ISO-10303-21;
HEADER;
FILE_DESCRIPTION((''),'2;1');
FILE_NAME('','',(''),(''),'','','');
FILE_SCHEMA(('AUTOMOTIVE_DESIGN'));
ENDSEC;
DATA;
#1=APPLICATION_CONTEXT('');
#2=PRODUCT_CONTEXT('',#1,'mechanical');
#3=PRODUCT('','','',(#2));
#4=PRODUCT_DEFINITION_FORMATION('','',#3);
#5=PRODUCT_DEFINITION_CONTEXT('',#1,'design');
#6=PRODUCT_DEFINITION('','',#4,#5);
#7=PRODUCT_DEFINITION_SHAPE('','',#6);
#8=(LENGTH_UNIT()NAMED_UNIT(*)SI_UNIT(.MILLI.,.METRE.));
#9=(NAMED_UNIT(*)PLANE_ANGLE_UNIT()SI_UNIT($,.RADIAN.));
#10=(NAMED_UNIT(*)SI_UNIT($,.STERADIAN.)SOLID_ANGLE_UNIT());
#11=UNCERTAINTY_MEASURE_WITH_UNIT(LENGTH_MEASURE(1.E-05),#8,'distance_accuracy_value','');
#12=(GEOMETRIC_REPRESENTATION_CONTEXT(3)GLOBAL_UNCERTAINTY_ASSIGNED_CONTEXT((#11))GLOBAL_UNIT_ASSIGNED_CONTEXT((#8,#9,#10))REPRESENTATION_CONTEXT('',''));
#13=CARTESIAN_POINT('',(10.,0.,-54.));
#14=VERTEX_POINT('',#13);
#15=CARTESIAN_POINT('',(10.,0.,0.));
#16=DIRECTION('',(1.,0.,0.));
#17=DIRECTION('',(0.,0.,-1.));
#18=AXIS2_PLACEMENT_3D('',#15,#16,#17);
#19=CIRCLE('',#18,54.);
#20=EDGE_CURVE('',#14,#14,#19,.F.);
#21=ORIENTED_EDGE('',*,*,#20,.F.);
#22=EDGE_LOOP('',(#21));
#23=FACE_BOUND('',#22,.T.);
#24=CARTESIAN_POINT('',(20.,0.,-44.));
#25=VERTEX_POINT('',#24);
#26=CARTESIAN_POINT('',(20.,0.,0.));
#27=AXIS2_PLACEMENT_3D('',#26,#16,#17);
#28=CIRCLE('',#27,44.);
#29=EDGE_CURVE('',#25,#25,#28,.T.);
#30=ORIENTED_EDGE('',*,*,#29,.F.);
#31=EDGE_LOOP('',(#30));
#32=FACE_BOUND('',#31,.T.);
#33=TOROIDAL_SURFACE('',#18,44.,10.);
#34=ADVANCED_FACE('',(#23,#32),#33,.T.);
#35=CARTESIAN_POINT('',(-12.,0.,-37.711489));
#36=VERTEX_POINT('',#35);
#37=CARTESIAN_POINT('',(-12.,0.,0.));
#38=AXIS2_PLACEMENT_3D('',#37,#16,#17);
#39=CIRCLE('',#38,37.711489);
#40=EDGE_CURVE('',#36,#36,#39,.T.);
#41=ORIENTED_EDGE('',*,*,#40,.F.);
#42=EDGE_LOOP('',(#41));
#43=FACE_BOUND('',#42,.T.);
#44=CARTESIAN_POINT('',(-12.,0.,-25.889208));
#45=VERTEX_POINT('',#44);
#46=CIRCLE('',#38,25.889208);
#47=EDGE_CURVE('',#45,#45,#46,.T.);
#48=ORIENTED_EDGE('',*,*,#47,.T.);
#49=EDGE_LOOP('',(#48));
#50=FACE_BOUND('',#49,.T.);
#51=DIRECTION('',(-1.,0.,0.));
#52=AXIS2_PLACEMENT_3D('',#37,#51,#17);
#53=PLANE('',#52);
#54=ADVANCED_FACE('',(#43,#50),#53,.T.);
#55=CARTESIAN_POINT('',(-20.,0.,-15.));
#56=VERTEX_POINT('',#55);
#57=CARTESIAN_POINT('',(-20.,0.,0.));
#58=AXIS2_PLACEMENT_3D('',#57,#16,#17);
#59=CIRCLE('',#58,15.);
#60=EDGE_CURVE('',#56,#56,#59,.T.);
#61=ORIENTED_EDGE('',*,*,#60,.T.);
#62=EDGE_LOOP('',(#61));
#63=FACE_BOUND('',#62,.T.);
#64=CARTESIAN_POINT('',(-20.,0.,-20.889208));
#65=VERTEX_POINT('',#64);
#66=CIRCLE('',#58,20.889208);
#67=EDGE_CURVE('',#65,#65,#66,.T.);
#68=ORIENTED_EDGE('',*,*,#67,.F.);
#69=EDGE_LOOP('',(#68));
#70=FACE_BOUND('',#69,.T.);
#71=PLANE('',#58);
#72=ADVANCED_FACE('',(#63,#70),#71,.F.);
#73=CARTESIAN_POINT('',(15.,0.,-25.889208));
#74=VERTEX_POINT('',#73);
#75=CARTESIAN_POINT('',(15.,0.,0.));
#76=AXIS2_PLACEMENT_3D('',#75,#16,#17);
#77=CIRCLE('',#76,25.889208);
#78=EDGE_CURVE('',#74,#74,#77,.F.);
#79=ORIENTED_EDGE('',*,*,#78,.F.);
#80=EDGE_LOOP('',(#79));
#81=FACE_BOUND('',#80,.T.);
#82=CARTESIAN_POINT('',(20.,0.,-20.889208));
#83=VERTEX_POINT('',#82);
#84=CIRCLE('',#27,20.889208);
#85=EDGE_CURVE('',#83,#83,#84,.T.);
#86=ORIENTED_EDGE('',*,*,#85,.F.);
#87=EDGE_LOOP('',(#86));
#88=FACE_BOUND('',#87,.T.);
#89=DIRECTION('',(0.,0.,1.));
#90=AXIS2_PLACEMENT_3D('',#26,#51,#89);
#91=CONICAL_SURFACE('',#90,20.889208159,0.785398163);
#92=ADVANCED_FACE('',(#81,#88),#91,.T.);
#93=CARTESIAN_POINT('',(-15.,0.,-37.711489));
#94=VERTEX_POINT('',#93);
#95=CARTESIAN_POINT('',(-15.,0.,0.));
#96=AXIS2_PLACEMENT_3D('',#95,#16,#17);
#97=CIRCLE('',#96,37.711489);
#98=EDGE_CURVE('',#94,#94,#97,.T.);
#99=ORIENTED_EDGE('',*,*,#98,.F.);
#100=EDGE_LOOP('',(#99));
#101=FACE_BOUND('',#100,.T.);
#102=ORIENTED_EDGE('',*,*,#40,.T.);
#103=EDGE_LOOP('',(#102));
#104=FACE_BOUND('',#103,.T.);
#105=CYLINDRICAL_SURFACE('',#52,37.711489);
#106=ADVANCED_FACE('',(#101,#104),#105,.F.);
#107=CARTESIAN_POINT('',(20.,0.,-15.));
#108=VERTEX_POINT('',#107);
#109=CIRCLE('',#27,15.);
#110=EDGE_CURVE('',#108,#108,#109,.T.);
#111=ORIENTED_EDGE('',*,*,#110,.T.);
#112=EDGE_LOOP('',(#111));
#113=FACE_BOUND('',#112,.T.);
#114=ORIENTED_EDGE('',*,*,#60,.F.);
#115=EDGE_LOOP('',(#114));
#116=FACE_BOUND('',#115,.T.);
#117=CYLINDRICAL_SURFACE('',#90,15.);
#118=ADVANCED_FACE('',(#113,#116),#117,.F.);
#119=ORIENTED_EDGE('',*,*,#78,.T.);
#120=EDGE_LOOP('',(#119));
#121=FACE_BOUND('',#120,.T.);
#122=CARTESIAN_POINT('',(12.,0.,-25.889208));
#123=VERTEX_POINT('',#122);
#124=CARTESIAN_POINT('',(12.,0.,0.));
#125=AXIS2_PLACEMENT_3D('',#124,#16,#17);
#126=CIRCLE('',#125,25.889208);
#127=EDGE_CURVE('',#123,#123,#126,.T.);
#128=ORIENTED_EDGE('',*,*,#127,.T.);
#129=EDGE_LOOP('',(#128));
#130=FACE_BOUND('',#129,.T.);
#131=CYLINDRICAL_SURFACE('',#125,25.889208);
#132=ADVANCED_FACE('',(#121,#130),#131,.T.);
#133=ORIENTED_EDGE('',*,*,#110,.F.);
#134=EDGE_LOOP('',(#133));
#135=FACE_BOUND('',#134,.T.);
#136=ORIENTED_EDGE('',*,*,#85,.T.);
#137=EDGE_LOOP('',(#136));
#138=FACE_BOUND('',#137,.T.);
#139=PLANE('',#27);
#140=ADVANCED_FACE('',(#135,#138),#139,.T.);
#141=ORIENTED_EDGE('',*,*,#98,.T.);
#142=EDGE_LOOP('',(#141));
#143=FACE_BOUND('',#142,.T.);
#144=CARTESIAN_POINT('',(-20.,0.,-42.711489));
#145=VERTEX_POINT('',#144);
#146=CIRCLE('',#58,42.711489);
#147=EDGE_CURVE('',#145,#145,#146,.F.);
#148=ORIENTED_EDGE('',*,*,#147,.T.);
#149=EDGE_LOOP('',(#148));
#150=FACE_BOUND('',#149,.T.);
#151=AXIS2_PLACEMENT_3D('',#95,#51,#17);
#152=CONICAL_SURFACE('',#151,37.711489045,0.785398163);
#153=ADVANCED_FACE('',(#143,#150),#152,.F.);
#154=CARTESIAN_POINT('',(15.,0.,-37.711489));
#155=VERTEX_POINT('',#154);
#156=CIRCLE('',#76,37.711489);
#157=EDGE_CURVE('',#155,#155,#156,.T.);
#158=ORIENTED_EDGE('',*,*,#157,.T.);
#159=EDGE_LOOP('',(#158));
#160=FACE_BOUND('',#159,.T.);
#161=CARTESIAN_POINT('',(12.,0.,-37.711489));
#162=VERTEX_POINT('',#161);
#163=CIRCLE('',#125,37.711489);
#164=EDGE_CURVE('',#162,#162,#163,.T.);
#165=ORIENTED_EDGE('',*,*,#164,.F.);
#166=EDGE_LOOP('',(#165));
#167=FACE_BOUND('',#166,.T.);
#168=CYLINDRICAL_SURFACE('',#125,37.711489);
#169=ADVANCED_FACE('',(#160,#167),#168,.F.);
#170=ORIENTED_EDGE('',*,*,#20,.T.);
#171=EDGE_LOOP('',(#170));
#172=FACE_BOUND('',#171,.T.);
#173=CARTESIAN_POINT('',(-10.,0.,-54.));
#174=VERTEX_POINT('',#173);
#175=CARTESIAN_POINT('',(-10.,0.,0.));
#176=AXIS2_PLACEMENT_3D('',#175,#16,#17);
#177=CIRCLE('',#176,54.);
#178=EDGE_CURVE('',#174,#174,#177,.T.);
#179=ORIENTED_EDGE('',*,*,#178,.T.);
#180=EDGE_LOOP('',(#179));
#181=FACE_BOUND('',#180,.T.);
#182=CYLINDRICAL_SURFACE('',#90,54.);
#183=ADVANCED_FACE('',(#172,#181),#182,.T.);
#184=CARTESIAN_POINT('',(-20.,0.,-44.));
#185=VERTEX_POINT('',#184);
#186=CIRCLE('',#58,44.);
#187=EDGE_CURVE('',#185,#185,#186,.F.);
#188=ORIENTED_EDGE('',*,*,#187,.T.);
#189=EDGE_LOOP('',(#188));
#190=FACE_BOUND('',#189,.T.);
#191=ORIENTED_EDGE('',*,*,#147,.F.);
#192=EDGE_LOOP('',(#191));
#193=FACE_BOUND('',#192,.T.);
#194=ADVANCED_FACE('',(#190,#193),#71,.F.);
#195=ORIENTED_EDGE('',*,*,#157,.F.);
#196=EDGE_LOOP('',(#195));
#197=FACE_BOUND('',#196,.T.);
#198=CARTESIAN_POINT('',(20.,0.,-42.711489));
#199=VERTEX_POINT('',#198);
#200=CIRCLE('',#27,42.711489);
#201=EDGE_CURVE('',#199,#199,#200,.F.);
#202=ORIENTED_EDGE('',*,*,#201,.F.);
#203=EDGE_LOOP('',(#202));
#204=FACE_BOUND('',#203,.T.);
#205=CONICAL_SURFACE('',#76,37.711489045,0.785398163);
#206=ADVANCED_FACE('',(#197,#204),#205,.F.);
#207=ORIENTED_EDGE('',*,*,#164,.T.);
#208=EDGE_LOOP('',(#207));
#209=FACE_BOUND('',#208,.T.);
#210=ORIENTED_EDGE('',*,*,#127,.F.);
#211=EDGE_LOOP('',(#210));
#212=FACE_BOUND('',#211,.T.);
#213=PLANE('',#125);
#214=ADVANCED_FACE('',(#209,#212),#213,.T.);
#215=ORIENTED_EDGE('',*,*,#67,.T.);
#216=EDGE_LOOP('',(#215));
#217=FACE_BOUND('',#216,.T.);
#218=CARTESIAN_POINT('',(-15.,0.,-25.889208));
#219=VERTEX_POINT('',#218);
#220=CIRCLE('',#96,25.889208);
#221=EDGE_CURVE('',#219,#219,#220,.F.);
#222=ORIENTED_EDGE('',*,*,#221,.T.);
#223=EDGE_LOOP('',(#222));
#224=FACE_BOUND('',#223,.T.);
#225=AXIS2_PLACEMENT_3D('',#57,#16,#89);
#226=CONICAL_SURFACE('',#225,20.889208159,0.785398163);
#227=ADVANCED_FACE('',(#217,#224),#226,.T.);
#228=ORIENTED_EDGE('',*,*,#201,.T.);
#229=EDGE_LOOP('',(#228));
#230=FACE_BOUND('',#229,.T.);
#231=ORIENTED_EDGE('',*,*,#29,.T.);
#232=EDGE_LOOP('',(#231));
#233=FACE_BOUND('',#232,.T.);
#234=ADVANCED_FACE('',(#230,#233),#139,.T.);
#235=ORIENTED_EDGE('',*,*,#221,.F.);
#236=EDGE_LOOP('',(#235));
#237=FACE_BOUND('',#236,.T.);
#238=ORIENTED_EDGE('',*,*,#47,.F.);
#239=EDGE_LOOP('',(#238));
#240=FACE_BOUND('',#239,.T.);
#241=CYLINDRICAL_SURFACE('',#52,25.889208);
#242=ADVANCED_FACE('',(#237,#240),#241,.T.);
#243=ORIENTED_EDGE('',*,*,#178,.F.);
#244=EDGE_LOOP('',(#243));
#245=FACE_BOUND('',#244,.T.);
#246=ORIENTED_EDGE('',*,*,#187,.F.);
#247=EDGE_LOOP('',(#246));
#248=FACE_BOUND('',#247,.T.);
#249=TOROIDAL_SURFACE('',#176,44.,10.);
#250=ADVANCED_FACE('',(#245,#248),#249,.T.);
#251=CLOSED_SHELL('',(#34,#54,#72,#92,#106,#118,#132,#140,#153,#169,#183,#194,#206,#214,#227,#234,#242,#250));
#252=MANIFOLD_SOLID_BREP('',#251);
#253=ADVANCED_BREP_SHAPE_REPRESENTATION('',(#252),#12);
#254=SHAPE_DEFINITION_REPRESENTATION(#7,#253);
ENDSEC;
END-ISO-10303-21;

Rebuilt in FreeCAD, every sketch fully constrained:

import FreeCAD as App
import Part
import Sketcher

V = App.Vector


def edges_at(feature, points):
    """Names of the edges that pass closest to the given points."""
    edges = feature.Shape.Edges
    near = lambda p: min(range(len(edges)), key=lambda i: edges[i].distToShape(Part.Vertex(*p))[0])
    return sorted({f"Edge{near(p) + 1}" for p in points})

doc = App.newDocument("Part")
body = doc.addObject("PartDesign::Body", "Body")

# Sketch on YZ plane
sketch1 = doc.addObject("Sketcher::SketchObject", "Sketch")
body.addObject(sketch1)
sketch1.AttachmentSupport = (doc.YZ_Plane, [""])
sketch1.MapMode = "FlatFace"
sketch1.addGeometry(Part.Circle(V(0, 0, 0), V(0, 0, 1), 54), False)
sketch1.addGeometry(Part.Circle(V(0, 0, 0), V(0, 0, 1), 15), False)
sketch1.addConstraint(Sketcher.Constraint("Coincident", 0, 3, -1, 1))
sketch1.addConstraint(Sketcher.Constraint("Coincident", 1, 3, -1, 1))
sketch1.addConstraint(Sketcher.Constraint("Diameter", 0, 108.0))
sketch1.addConstraint(Sketcher.Constraint("Diameter", 1, 30.0))
pad1 = doc.addObject("PartDesign::Pad", "Pad")
body.addObject(pad1)
pad1.Profile = sketch1
pad1.Length = 40
pad1.Midplane = True
doc.recompute()

fillet = doc.addObject("PartDesign::Fillet", "Fillet")
body.addObject(fillet)
fillet.Base = (pad1, edges_at(pad1, [(-20, 0, 54), (20, 0, 54)]))
fillet.Radius = 10

# Sketch on YZ plane
sketch2 = doc.addObject("Sketcher::SketchObject", "Sketch001")
body.addObject(sketch2)
sketch2.AttachmentSupport = (doc.YZ_Plane, [""])
sketch2.MapMode = "FlatFace"
sketch2.AttachmentOffset = App.Placement(V(0, 0, 20), App.Rotation())
sketch2.addGeometry(Part.Circle(V(0, 0, 0), V(0, 0, 1), 38), False)
sketch2.addGeometry(Part.Circle(V(0, 0, 0), V(0, 0, 1), 26), False)
sketch2.addConstraint(Sketcher.Constraint("Coincident", 0, 3, -1, 1))
sketch2.addConstraint(Sketcher.Constraint("Coincident", 1, 3, -1, 1))
sketch2.addConstraint(Sketcher.Constraint("Diameter", 0, 75.422978))
sketch2.addConstraint(Sketcher.Constraint("Diameter", 1, 51.778416))
pocket1 = doc.addObject("PartDesign::Pocket", "Pocket")
body.addObject(pocket1)
pocket1.Profile = sketch2
pocket1.Length = 8
doc.recompute()

chamfer = doc.addObject("PartDesign::Chamfer", "Chamfer")
body.addObject(chamfer)
chamfer.Base = (pocket1, edges_at(pocket1, [(20, 0, 37.711), (20, 0, 25.889)]))
chamfer.Size = 5
doc.recompute()

mirrored = doc.addObject("PartDesign::Mirrored", "Mirrored")
body.addObject(mirrored)
mirrored.Originals = [pocket1]
mirrored.MirrorPlane = (doc.YZ_Plane, [""])
body.Tip = mirrored
doc.recompute()

chamfer2 = doc.addObject("PartDesign::Chamfer", "Chamfer001")
body.addObject(chamfer2)
chamfer2.Base = (mirrored, edges_at(mirrored, [(-20, 0, 37.711), (-20, 0, 25.889)]))
chamfer2.Size = 5

doc.recompute()
